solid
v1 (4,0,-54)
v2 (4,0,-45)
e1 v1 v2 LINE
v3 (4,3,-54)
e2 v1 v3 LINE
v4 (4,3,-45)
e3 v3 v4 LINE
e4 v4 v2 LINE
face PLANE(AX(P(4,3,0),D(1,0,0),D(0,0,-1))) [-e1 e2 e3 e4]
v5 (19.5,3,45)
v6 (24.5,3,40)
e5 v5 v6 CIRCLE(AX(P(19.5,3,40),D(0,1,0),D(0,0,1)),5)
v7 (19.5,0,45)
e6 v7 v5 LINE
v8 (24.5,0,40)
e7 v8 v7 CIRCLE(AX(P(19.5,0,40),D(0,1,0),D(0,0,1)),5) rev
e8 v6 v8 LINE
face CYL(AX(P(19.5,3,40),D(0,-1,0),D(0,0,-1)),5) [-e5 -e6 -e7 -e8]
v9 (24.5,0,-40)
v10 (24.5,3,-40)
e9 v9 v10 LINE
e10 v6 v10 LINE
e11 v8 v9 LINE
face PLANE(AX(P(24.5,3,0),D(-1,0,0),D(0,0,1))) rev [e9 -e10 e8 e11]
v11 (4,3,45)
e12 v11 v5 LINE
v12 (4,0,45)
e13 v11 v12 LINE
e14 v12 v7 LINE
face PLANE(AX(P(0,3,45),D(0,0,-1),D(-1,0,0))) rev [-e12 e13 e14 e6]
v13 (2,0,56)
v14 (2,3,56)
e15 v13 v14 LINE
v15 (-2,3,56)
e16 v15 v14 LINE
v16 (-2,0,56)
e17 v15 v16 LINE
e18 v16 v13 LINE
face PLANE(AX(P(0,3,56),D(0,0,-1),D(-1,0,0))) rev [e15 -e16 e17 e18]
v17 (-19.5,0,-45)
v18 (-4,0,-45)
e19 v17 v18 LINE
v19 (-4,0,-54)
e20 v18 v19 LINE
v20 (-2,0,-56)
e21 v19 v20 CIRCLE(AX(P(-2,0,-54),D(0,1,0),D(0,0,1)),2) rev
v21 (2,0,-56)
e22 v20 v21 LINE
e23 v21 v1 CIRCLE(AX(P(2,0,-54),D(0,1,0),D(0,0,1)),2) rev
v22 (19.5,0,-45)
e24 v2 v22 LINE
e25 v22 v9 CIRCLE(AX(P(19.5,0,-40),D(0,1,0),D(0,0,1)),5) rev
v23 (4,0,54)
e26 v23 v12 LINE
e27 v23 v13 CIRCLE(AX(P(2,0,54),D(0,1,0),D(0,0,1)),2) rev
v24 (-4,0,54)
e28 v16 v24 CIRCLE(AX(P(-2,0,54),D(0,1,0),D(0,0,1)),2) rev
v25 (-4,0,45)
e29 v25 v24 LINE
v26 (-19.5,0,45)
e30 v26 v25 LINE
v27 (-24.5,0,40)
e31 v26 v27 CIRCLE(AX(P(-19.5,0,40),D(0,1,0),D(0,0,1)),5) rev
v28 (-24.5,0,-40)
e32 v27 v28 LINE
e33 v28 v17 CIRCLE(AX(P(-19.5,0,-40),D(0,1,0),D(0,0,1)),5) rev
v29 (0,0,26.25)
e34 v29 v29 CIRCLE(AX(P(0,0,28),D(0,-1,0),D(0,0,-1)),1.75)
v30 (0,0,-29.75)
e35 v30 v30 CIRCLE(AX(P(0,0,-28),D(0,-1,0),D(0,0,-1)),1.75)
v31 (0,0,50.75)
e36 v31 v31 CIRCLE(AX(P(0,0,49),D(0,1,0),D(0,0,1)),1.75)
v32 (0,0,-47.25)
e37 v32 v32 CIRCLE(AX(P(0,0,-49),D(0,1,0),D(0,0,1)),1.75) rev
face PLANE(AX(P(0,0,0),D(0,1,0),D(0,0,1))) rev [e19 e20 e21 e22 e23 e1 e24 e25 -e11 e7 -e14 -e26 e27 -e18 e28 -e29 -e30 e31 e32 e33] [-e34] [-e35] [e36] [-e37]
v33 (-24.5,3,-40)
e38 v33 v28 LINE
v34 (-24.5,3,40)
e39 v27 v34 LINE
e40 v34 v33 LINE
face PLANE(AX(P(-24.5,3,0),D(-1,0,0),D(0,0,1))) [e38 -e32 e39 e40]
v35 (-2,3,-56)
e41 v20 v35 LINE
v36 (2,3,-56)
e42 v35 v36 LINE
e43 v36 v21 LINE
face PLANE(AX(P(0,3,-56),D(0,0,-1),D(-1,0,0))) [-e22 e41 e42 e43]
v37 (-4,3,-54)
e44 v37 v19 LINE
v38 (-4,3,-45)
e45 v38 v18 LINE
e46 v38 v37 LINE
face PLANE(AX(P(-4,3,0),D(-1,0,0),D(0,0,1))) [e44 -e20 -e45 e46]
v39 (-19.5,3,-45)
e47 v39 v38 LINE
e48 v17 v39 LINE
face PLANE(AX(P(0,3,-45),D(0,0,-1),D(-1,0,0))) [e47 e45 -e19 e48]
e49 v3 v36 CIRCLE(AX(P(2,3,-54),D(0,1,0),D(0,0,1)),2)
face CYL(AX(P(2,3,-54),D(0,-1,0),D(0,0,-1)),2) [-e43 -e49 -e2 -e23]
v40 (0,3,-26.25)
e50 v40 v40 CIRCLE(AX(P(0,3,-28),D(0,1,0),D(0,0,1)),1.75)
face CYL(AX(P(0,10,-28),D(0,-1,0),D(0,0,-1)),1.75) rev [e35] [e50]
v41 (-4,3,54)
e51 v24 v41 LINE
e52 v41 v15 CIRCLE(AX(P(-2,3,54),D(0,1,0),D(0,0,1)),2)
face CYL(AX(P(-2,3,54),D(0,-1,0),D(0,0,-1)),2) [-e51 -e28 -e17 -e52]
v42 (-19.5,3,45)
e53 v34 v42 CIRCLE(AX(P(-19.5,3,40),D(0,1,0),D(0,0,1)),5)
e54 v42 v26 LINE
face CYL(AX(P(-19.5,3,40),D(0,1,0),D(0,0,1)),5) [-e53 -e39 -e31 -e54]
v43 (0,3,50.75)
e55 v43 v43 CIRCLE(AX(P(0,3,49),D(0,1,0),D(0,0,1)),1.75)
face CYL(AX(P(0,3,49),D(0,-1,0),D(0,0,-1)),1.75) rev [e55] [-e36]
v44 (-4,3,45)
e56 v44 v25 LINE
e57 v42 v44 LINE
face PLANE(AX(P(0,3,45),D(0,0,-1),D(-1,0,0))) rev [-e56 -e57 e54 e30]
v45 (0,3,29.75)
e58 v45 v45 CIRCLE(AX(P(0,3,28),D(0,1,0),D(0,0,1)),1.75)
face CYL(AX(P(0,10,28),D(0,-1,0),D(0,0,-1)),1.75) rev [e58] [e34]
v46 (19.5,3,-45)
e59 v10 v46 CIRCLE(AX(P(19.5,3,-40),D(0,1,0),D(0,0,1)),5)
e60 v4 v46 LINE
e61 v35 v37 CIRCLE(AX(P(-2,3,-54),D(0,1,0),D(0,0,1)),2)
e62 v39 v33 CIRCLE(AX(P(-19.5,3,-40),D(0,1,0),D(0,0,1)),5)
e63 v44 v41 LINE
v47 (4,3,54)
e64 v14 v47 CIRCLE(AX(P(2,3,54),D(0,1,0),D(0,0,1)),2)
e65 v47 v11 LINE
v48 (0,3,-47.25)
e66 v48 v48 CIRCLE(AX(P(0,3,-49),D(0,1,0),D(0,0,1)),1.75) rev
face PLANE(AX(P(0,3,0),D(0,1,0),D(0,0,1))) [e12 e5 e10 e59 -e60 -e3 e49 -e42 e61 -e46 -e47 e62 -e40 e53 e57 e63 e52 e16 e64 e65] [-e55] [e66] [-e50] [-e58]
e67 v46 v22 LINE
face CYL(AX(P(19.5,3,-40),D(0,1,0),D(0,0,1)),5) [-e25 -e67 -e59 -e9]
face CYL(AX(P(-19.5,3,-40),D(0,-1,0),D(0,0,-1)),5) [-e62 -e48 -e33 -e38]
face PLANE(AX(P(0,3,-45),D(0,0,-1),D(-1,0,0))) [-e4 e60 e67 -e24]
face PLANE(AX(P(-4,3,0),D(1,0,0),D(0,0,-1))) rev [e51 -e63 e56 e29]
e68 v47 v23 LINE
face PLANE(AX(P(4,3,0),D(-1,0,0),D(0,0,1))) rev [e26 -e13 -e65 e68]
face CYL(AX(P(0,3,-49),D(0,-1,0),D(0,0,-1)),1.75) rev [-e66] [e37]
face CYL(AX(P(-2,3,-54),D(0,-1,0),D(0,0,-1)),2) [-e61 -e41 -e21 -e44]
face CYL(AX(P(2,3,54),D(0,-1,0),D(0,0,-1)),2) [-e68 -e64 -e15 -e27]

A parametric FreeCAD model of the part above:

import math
import FreeCAD as App
import Part
import Sketcher

V = App.Vector


def edges_at(feature, points):
    """Names of the edges that pass closest to the given points."""
    edges = feature.Shape.Edges
    near = lambda p: min(range(len(edges)), key=lambda i: edges[i].distToShape(Part.Vertex(*p))[0])
    return sorted({f"Edge{near(p) + 1}" for p in points})

doc = App.newDocument("Part")
body = doc.addObject("PartDesign::Body", "Body")

sketch1 = body.newObject("Sketcher::SketchObject", "Sketch")
sketch1.AttachmentSupport = (doc.getObject("XZ_Plane"), [""])
sketch1.MapMode = "FlatFace"
sketch1.addGeometry([
    Part.LineSegment(V(-24.5, -45, 0), V(-24.5, 45, 0)),
    Part.LineSegment(V(-24.5, 45, 0), V(-4, 45, 0)),
    Part.LineSegment(V(-4, 45, 0), V(-4, 56, 0)),
    Part.LineSegment(V(-4, 56, 0), V(4, 56, 0)),
    Part.LineSegment(V(4, 56, 0), V(4, 45, 0)),
    Part.LineSegment(V(4, 45, 0), V(24.5, 45, 0)),
    Part.LineSegment(V(24.5, 45, 0), V(24.5, -45, 0)),
    Part.LineSegment(V(24.5, -45, 0), V(4, -45, 0)),
    Part.LineSegment(V(4, -45, 0), V(4, -56, 0)),
    Part.LineSegment(V(4, -56, 0), V(-4, -56, 0)),
    Part.LineSegment(V(-4, -56, 0), V(-4, -45, 0)),
    Part.LineSegment(V(-4, -45, 0), V(-24.5, -45, 0)),
    Part.Circle(V(0, 49, 0), V(0, 0, 1), 1.75),
    Part.Circle(V(0, -49, 0), V(0, 0, 1), 1.75),
], False)
sketch1.addConstraint([
    Sketcher.Constraint("Coincident", 0, 2, 1, 1),
    Sketcher.Constraint("Coincident", 1, 2, 2, 1),
    Sketcher.Constraint("Coincident", 2, 2, 3, 1),
    Sketcher.Constraint("Coincident", 3, 2, 4, 1),
    Sketcher.Constraint("Coincident", 4, 2, 5, 1),
    Sketcher.Constraint("Coincident", 5, 2, 6, 1),
    Sketcher.Constraint("Coincident", 6, 2, 7, 1),
    Sketcher.Constraint("Coincident", 7, 2, 8, 1),
    Sketcher.Constraint("Coincident", 8, 2, 9, 1),
    Sketcher.Constraint("Coincident", 9, 2, 10, 1),
    Sketcher.Constraint("Coincident", 10, 2, 11, 1),
    Sketcher.Constraint("Coincident", 11, 2, 0, 1),
    Sketcher.Constraint("Vertical", 0),
    Sketcher.Constraint("Horizontal", 1),
    Sketcher.Constraint("Vertical", 2),
    Sketcher.Constraint("Horizontal", 3),
    Sketcher.Constraint("Vertical", 4),
    Sketcher.Constraint("Horizontal", 5),
    Sketcher.Constraint("Vertical", 6),
    Sketcher.Constraint("Horizontal", 7),
    Sketcher.Constraint("Vertical", 8),
    Sketcher.Constraint("Horizontal", 9),
    Sketcher.Constraint("Vertical", 10),
    Sketcher.Constraint("Horizontal", 11),
    Sketcher.Constraint("Equal", 12, 13),
    Sketcher.Constraint("Symmetric", 12, 3, 13, 3, -1, 1),
    Sketcher.Constraint("Symmetric", 0, 2, 6, 2, -1, 1),
    Sketcher.Constraint("Symmetric", 2, 2, 8, 2, -1, 1),
    Sketcher.Constraint("Symmetric", 4, 2, 10, 2, -1, 1),
    Sketcher.Constraint("Symmetric", 1, 2, 4, 2, -2),
    Sketcher.Constraint("PointOnObject", 12, 3, -2),
    Sketcher.Constraint("Diameter", 12, 3.5),
    Sketcher.Constraint("DistanceX", 3, 1, 3, 2, 8.0),
    Sketcher.Constraint("DistanceY", 0, 1, 0, 2, 90.0),
    Sketcher.Constraint("DistanceY", 2, 1, 2, 2, 11.0),
    Sketcher.Constraint("DistanceX", 1, 1, 1, 2, 20.5),
    Sketcher.Constraint("DistanceY", -1, 1, 12, 3, 49.0),
])
pad1 = body.newObject("PartDesign::Pad", "Pad")
pad1.Profile = sketch1
pad1.Length = 3
pad1.Reversed = True
doc.recompute()

fillet = body.newObject("PartDesign::Fillet", "Fillet")
fillet.Base = (pad1, edges_at(pad1, [
    (-4, 1.5, -56),
    (4, 1.5, -56),
    (4, 1.5, 56),
    (-4, 1.5, 56),
]))
fillet.Radius = 2
doc.recompute()

fillet2 = body.newObject("PartDesign::Fillet", "Fillet001")
fillet2.Base = (fillet, edges_at(fillet, [
    (-24.5, 1.5, 45),
    (-24.5, 1.5, -45),
    (24.5, 1.5, -45),
    (24.5, 1.5, 45),
]))
fillet2.Radius = 5

sketch2 = body.newObject("Sketcher::SketchObject", "Sketch001")
sketch2.AttachmentSupport = (doc.getObject("XZ_Plane"), [""])
sketch2.MapMode = "FlatFace"
sketch2.addGeometry([
    Part.ArcOfCircle(Part.Circle(V(0, -28, 0), V(0, 0, 1), 1.75), math.radians(0), math.radians(90)),
    Part.ArcOfCircle(Part.Circle(V(0, -28, 0), V(0, 0, 1), 1.75), math.radians(90), math.radians(270)),
    Part.ArcOfCircle(Part.Circle(V(0, -28, 0), V(0, 0, 1), 1.75), math.radians(-90), math.radians(0)),
    Part.ArcOfCircle(Part.Circle(V(0, 28, 0), V(0, 0, 1), 1.75), math.radians(0), math.radians(90)),
    Part.ArcOfCircle(Part.Circle(V(0, 28, 0), V(0, 0, 1), 1.75), math.radians(90), math.radians(270)),
    Part.ArcOfCircle(Part.Circle(V(0, 28, 0), V(0, 0, 1), 1.75), math.radians(-90), math.radians(0)),
], False)
sketch2.addConstraint([
    Sketcher.Constraint("Tangent", 0, 2, 1, 1),
    Sketcher.Constraint("Tangent", 1, 2, 2, 1),
    Sketcher.Constraint("Tangent", 2, 2, 0, 1),
    Sketcher.Constraint("Tangent", 3, 2, 4, 1),
    Sketcher.Constraint("Tangent", 4, 2, 5, 1),
    Sketcher.Constraint("Tangent", 5, 2, 3, 1),
    Sketcher.Constraint("Equal", 2, 3),
    Sketcher.Constraint("Symmetric", 0, 3, 3, 3, -1, 1),
    Sketcher.Constraint("Symmetric", 2, 2, 5, 2, -1),
    Sketcher.Constraint("PointOnObject", 0, 2, -2),
    Sketcher.Constraint("PointOnObject", 1, 2, -2),
    Sketcher.Constraint("PointOnObject", 3, 2, -2),
    Sketcher.Constraint("PointOnObject", 4, 2, -2),
    Sketcher.Constraint("Horizontal", 1, 3, 2, 2),
    Sketcher.Constraint("Radius", 0, 1.75),
    Sketcher.Constraint("DistanceY", 0, 3, -1, 1, 28.0),
])
pocket1 = body.newObject("PartDesign::Pocket", "Pocket")
pocket1.Profile = sketch2
pocket1.Length = 10

doc.recompute()
